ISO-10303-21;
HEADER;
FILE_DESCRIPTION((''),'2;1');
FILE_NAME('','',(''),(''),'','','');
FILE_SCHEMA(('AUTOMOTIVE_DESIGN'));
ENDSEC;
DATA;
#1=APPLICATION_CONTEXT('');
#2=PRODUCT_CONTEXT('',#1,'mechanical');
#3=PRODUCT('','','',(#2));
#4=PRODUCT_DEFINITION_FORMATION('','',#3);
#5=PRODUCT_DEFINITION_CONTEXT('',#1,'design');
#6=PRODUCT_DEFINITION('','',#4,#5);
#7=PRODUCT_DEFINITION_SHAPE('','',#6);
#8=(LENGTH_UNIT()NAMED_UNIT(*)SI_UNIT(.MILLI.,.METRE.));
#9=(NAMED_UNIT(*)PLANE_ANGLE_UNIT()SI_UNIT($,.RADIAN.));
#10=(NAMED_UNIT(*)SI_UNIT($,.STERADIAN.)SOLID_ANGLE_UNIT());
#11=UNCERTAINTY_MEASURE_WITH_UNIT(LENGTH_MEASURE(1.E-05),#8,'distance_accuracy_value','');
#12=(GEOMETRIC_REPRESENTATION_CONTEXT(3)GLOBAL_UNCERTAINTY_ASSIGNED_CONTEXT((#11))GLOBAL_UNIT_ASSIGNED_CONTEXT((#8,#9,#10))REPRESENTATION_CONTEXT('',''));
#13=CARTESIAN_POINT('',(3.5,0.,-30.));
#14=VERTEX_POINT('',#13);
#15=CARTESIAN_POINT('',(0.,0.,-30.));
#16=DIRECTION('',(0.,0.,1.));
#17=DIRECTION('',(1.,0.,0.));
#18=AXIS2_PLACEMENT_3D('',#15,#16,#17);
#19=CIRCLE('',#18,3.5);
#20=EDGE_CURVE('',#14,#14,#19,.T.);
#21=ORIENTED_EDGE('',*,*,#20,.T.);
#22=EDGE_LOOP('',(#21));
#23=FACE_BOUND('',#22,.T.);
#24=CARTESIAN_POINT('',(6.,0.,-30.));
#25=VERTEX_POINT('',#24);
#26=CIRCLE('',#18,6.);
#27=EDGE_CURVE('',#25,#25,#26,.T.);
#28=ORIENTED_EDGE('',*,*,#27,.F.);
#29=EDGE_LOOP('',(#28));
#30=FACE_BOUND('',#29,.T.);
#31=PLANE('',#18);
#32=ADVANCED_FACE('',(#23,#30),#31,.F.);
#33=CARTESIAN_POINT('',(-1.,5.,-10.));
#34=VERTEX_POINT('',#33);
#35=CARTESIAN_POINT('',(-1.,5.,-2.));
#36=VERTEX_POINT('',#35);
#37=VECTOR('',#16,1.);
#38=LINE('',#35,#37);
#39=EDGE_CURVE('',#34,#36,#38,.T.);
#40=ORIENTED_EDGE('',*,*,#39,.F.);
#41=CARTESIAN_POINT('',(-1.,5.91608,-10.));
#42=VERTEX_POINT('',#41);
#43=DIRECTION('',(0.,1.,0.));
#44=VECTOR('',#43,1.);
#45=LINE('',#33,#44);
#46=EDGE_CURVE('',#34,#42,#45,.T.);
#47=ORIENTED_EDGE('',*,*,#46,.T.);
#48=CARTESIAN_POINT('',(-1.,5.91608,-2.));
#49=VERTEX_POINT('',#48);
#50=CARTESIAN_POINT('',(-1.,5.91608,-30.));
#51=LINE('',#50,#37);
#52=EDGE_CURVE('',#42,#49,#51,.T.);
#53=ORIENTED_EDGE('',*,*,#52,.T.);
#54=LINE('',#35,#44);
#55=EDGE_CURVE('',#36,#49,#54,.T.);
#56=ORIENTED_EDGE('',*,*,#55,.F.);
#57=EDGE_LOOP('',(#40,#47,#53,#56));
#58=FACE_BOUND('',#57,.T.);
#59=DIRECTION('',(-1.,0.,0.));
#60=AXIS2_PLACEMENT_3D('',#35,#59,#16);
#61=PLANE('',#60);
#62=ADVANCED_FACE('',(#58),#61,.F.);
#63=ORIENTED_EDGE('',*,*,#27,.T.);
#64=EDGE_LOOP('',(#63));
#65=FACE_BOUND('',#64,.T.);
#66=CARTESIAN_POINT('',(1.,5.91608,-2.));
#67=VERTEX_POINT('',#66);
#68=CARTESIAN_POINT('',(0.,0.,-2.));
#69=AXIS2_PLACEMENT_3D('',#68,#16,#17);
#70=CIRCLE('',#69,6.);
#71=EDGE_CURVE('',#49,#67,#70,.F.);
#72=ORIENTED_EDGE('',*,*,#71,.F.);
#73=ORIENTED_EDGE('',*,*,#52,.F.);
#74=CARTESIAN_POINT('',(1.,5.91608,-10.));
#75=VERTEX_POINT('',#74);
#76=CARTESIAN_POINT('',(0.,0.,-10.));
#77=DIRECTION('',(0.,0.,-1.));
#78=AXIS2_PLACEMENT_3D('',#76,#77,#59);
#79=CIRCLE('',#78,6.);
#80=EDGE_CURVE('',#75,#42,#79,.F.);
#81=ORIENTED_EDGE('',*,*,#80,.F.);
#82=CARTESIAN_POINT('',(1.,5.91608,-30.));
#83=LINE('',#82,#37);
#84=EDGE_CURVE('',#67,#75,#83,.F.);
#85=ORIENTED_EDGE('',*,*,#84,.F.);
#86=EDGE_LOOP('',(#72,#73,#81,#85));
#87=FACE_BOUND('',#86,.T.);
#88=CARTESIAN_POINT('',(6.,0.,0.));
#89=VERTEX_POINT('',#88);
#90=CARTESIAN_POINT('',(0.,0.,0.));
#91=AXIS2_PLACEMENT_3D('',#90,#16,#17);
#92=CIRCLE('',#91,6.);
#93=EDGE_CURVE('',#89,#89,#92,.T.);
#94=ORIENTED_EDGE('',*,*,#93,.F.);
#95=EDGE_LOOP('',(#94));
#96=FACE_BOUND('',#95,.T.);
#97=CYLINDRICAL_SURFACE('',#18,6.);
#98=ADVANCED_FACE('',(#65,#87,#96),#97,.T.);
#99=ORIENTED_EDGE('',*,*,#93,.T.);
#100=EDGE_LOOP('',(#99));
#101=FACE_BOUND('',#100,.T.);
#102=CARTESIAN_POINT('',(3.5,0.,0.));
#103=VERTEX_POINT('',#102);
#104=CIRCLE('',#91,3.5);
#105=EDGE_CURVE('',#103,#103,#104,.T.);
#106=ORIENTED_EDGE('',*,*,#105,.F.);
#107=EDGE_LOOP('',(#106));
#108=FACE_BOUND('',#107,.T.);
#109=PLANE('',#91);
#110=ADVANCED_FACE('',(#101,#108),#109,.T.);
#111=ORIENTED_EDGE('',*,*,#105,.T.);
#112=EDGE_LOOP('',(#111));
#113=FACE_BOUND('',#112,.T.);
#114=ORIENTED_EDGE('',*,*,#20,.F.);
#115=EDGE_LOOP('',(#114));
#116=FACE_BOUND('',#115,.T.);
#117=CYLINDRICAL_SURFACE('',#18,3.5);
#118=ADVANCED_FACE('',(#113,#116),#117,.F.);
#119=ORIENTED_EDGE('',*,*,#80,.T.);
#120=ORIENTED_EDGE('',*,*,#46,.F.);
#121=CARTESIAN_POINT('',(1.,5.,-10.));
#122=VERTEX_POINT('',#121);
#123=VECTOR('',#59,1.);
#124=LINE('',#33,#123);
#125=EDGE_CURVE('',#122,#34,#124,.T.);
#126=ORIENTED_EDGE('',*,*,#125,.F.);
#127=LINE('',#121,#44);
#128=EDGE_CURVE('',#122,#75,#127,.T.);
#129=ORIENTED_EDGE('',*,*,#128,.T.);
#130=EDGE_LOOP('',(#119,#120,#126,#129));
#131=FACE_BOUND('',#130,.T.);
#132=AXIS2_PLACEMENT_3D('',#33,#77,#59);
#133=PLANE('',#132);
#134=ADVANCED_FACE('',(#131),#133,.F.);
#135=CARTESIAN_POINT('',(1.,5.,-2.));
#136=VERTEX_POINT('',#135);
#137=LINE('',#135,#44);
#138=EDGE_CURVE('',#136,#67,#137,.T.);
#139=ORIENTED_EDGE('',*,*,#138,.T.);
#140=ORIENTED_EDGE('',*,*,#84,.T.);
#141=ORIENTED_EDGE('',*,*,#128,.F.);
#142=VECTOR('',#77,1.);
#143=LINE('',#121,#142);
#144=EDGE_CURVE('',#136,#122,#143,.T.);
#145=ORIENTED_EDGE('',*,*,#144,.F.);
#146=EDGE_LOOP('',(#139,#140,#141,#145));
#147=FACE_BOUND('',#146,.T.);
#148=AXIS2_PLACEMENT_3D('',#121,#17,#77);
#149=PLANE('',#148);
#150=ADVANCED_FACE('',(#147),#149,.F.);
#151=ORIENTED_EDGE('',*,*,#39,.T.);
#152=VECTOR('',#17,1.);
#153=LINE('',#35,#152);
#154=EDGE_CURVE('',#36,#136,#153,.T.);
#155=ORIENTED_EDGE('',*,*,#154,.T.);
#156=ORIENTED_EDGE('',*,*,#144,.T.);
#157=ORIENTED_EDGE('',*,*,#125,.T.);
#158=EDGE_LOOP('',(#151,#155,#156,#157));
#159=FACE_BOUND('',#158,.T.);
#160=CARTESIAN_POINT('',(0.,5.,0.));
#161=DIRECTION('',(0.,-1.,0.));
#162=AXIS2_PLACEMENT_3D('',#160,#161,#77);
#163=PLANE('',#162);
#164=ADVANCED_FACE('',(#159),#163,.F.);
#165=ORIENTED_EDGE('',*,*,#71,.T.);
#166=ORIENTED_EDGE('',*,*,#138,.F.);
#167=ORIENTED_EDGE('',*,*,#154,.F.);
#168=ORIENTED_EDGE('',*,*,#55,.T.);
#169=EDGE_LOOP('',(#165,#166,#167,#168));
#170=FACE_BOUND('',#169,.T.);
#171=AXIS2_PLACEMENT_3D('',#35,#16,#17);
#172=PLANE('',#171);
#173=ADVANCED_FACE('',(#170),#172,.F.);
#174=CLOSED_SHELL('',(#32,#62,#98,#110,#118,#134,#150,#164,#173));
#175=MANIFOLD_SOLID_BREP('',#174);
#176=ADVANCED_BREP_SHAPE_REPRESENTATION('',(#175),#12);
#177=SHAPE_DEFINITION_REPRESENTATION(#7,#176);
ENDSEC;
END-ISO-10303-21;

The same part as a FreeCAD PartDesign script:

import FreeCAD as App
import Part
import Sketcher

V = App.Vector

doc = App.newDocument("Part")
body = doc.addObject("PartDesign::Body", "Body")

# Sketch on XY plane
sketch1 = doc.addObject("Sketcher::SketchObject", "Sketch")
body.addObject(sketch1)
sketch1.AttachmentSupport = (doc.XY_Plane, [""])
sketch1.MapMode = "FlatFace"
sketch1.addGeometry([
    Part.Circle(V(0, 0, 0), V(0, 0, 1), 6),
    Part.Circle(V(0, 0, 0), V(0, 0, 1), 3.5),
], False)
sketch1.addConstraint([
    Sketcher.Constraint("Coincident", 0, 3, -1, 1),
    Sketcher.Constraint("Coincident", 1, 3, -1, 1),
    Sketcher.Constraint("Diameter", 0, 12.0),
    Sketcher.Constraint("Diameter", 1, 7.0),
])
pad1 = doc.addObject("PartDesign::Pad", "Pad")
body.addObject(pad1)
pad1.Profile = sketch1
pad1.Length = 30
pad1.Reversed = True

# Sketch on XZ plane
sketch2 = doc.addObject("Sketcher::SketchObject", "Sketch001")
body.addObject(sketch2)
sketch2.AttachmentSupport = (doc.XZ_Plane, [""])
sketch2.MapMode = "FlatFace"
sketch2.AttachmentOffset = App.Placement(V(0, 0, -6), App.Rotation())
sketch2.addGeometry([
    Part.LineSegment(V(-1, -10, 0), V(-1, -2, 0)),
    Part.LineSegment(V(-1, -2, 0), V(1, -2, 0)),
    Part.LineSegment(V(1, -2, 0), V(1, -10, 0)),
    Part.LineSegment(V(1, -10, 0), V(-1, -10, 0)),
], False)
sketch2.addConstraint([
    Sketcher.Constraint("Coincident", 0, 2, 1, 1),
    Sketcher.Constraint("Coincident", 1, 2, 2, 1),
    Sketcher.Constraint("Coincident", 2, 2, 3, 1),
    Sketcher.Constraint("Coincident", 3, 2, 0, 1),
    Sketcher.Constraint("Vertical", 0),
    Sketcher.Constraint("Horizontal", 1),
    Sketcher.Constraint("Vertical", 2),
    Sketcher.Constraint("Horizontal", 3),
    Sketcher.Constraint("DistanceX", 1, 1, 1, 2, 2.0),
    Sketcher.Constraint("DistanceY", 0, 1, 0, 2, 8.0),
    Sketcher.Constraint("DistanceX", 0, 2, -1, 1, 1.0),
    Sketcher.Constraint("DistanceY", 0, 2, -1, 1, 2.0),
])
pocket1 = doc.addObject("PartDesign::Pocket", "Pocket")
body.addObject(pocket1)
pocket1.Profile = sketch2
pocket1.Length = 1
pocket1.Reversed = True

doc.recompute()
